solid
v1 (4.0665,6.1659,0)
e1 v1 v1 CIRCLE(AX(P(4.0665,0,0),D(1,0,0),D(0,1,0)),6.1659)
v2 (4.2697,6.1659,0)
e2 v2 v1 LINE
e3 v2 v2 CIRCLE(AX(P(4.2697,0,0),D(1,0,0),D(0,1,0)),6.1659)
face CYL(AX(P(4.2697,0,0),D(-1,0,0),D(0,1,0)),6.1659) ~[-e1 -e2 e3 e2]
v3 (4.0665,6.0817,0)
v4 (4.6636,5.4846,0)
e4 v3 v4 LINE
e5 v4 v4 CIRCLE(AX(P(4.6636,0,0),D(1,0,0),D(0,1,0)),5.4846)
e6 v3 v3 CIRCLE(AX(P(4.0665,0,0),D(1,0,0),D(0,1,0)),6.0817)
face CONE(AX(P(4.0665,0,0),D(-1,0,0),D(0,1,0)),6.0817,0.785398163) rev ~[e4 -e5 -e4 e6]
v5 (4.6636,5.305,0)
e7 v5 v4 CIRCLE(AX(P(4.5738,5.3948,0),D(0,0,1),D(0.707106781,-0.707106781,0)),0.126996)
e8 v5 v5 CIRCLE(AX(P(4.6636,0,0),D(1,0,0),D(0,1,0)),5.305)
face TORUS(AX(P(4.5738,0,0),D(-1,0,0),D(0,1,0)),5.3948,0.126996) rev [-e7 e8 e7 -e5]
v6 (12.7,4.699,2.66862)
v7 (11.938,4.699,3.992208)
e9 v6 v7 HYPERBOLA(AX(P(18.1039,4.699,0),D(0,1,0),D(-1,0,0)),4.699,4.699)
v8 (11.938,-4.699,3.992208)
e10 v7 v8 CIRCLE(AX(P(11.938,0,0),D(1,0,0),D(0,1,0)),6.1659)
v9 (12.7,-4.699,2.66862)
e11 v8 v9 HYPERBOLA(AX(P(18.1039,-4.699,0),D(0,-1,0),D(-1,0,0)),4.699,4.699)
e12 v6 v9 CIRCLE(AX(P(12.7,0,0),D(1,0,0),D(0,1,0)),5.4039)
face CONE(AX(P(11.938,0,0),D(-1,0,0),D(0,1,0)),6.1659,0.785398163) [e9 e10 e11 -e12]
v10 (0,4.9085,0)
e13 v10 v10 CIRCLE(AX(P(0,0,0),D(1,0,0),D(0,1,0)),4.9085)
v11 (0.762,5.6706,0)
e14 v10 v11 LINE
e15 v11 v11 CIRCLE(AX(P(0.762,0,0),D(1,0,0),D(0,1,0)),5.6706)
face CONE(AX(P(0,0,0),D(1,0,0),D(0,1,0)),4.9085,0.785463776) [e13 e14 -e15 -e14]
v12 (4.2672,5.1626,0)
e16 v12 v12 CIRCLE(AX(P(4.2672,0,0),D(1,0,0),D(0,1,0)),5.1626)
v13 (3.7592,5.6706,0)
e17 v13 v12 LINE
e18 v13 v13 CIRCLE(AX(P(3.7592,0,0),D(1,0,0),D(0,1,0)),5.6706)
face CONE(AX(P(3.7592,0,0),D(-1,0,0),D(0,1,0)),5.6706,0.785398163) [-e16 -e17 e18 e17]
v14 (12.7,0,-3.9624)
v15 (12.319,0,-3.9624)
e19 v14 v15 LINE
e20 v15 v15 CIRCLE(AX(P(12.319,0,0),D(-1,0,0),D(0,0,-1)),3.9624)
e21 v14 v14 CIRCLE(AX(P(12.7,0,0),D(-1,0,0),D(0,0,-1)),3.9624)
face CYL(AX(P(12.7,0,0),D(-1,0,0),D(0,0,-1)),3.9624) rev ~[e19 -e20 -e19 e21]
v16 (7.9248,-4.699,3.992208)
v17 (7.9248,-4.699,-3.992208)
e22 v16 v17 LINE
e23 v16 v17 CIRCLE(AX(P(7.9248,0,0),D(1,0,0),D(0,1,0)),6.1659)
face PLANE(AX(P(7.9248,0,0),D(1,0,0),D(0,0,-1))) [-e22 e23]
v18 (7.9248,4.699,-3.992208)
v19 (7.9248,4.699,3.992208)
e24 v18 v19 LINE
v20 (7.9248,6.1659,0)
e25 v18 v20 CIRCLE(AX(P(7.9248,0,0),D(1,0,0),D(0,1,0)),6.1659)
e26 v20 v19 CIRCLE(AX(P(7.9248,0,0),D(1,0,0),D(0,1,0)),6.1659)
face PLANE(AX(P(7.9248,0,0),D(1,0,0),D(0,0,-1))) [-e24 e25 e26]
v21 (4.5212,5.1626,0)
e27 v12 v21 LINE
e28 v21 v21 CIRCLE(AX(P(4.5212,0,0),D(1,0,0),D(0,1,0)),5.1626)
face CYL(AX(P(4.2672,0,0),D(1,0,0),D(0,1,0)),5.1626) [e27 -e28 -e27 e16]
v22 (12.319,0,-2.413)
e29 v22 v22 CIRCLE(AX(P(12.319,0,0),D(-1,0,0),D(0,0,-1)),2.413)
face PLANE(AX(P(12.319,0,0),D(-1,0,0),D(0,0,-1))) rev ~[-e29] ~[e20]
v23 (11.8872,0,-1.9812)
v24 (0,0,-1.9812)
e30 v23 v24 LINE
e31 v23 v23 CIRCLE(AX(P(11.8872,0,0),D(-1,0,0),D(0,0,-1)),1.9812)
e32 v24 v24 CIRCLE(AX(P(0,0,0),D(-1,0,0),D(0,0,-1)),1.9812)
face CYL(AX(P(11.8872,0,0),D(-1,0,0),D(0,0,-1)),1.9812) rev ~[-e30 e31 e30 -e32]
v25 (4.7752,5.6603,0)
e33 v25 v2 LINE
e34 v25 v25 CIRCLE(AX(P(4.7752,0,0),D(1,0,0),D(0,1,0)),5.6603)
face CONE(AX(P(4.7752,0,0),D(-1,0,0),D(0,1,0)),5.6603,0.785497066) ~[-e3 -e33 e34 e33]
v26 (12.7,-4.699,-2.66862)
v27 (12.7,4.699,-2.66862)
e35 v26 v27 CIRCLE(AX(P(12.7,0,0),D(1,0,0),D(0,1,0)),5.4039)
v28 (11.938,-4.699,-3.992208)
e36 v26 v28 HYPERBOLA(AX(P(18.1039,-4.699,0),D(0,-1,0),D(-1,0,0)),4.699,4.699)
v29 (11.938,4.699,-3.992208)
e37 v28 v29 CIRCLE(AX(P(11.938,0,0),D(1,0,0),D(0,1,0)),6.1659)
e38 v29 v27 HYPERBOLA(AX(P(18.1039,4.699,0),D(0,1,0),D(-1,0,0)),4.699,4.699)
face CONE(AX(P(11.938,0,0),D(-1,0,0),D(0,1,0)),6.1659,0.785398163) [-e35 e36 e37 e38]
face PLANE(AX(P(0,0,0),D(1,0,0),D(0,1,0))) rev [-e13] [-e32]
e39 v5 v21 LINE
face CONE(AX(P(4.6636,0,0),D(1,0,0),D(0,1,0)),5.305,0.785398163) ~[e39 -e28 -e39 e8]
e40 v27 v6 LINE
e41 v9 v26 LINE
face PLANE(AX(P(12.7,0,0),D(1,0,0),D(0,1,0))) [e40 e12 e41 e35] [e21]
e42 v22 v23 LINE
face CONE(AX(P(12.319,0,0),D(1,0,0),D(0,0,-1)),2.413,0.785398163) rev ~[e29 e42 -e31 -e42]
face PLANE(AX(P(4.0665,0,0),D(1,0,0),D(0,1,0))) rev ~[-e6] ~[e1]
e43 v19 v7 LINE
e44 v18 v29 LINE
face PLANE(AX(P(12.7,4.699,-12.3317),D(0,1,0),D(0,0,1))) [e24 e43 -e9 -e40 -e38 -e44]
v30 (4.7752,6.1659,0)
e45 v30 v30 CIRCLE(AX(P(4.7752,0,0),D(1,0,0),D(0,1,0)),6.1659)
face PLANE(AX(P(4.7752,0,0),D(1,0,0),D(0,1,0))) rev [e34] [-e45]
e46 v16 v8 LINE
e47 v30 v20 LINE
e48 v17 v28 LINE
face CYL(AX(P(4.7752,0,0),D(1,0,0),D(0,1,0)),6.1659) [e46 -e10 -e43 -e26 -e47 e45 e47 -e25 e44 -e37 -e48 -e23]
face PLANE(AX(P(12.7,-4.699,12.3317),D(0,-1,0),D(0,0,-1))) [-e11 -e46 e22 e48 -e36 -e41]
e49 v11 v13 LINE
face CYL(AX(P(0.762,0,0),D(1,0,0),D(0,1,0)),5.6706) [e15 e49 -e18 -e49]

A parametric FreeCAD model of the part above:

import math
import FreeCAD as App
import Part
import Sketcher
Q = App.Units.Quantity

doc = App.newDocument("Part")
body = doc.addObject("PartDesign::Body", "Body")

# Sketch on XY plane
sketch1 = body.newObject("Sketcher::SketchObject", "Sketch")
sketch1.AttachmentSupport = (doc.getObject("XY_Plane"), [""])
sketch1.MapMode = "FlatFace"
sketch1.addGeometry([
    Part.LineSegment(App.Vector(0, 0, 0), App.Vector(12.7, 0, 0)),  # 0
    Part.LineSegment(App.Vector(12.7, 0, 0), App.Vector(12.7, 5.4, 0)),  # 1
    Part.LineSegment(App.Vector(12.7, 5.4, 0), App.Vector(11.9, 6.2, 0)),  # 2
    Part.LineSegment(App.Vector(11.9, 6.2, 0), App.Vector(4.8, 6.2, 0)),  # 3
    Part.LineSegment(App.Vector(4.8, 6.2, 0), App.Vector(4.8, 5.2, 0)),  # 4
    Part.LineSegment(App.Vector(4.8, 5.2, 0), App.Vector(4.3, 5.2, 0)),  # 5
    Part.LineSegment(App.Vector(4.3, 5.2, 0), App.Vector(3.8, 5.7, 0)),  # 6
    Part.LineSegment(App.Vector(3.8, 5.7, 0), App.Vector(0.8, 5.7, 0)),  # 7
    Part.LineSegment(App.Vector(0.8, 5.7, 0), App.Vector(0, 4.9, 0)),  # 8
    Part.LineSegment(App.Vector(0, 4.9, 0), App.Vector(0, 0, 0)),  # 9
], False)
sketch1.addConstraint([
    Sketcher.Constraint("Coincident", 0, 2, 1, 1),
    Sketcher.Constraint("Coincident", 1, 2, 2, 1),
    Sketcher.Constraint("Coincident", 2, 2, 3, 1),
    Sketcher.Constraint("Coincident", 3, 2, 4, 1),
    Sketcher.Constraint("Coincident", 4, 2, 5, 1),
    Sketcher.Constraint("Coincident", 5, 2, 6, 1),
    Sketcher.Constraint("Coincident", 6, 2, 7, 1),
    Sketcher.Constraint("Coincident", 7, 2, 8, 1),
    Sketcher.Constraint("Coincident", 8, 2, 9, 1),
    Sketcher.Constraint("Coincident", 9, 2, 0, 1),
    Sketcher.Constraint("Horizontal", 0),
    Sketcher.Constraint("Vertical", 1),
    Sketcher.Constraint("Horizontal", 3),
    Sketcher.Constraint("Vertical", 4),
    Sketcher.Constraint("Horizontal", 5),
    Sketcher.Constraint("Horizontal", 7),
    Sketcher.Constraint("Vertical", 9),
    Sketcher.Constraint("Coincident", 9, 2, -1, 1),
    Sketcher.Constraint("Parallel", 2, 6),
    Sketcher.Constraint("Perpendicular", 6, 8),
    Sketcher.Constraint("Equal", 2, 8),
    Sketcher.Constraint("DistanceX", 0, 1, 0, 2, Q("0.5 in")),
    Sketcher.Constraint("Angle", 2, Q("135 deg")),
    Sketcher.Constraint("DistanceX", 5, 2, 5, 1, Q("0.02 in")),
    Sketcher.Constraint("DistanceX", 3, 2, 3, 1, Q("0.282 in")),
    Sketcher.Constraint("DistanceX", 7, 2, 7, 1, Q("0.118 in")),
    Sketcher.Constraint("DistanceX", -1, 1, 2, 2, Q("0.47 in")),
    Sketcher.Constraint("DistanceY", 4, 2, 4, 1, Q("0.0395 in")),
    Sketcher.Constraint("DistanceY", 1, 1, 1, 2, Q("5.404 mm")),
])
revolution = body.newObject("PartDesign::Revolution", "Revolution")
revolution.Profile = sketch1
revolution.ReferenceAxis = (sketch1, ["H_Axis"])
revolution.Angle = 360

# Sketch on YZ plane
sketch2 = body.newObject("Sketcher::SketchObject", "Sketch001")
sketch2.AttachmentSupport = (doc.getObject("YZ_Plane"), [""])
sketch2.MapMode = "FlatFace"
sketch2.AttachmentOffset = App.Placement(App.Vector(0, 0, 0.5 * 25.4), App.Rotation())
sketch2.addGeometry(Part.Circle(App.Vector(0, 0, 0), App.Vector(0, 0, 1), 4), False)
sketch2.addConstraint([
    Sketcher.Constraint("Coincident", 0, 3, -1, 1),
    Sketcher.Constraint("Diameter", 0, Q("0.312 in")),
])
doc.recompute()
hole = body.newObject("PartDesign::Hole", "Hole")
hole.Profile = sketch2
hole.ThreadType = "None"
hole.Diameter = Q("0.312 in")
hole.DepthType = "Dimension"
hole.Depth = Q("0.015 in")
hole.DrillPoint = "Flat"

# Sketch on YZ plane
sketch3 = body.newObject("Sketcher::SketchObject", "Sketch002")
sketch3.AttachmentSupport = (doc.getObject("YZ_Plane"), [""])
sketch3.MapMode = "FlatFace"
sketch3.AttachmentOffset = App.Placement(App.Vector(0, 0, 0.485 * 25.4), App.Rotation())
sketch3.addGeometry(Part.Circle(App.Vector(0, 0, 0), App.Vector(0, 0, 1), 2), False)
sketch3.addConstraint([
    Sketcher.Constraint("Coincident", 0, 3, -1, 1),
    Sketcher.Constraint("Diameter", 0, Q("0.156 in")),
])
doc.recompute()
hole2 = body.newObject("PartDesign::Hole", "Hole001")
hole2.Profile = sketch3
hole2.ThreadType = "None"
hole2.Diameter = Q("0.156 in")
hole2.DepthType = "Dimension"
hole2.Depth = Q("0.485 in")
hole2.DrillPoint = "Flat"
hole2.HoleCutType = "Countersink"
hole2.HoleCutDiameter = Q("0.19 in")
hole2.HoleCutCountersinkAngle = 90

# Sketch on YZ plane
sketch4 = body.newObject("Sketcher::SketchObject", "Sketch003")
sketch4.AttachmentSupport = (doc.getObject("YZ_Plane"), [""])
sketch4.MapMode = "FlatFace"
sketch4.AttachmentOffset = App.Placement(App.Vector(0, 0, 0.5 * 25.4), App.Rotation())
sketch4.addGeometry([
    Part.LineSegment(App.Vector(12, 25, 0), App.Vector(-12, 25, 0)),  # 0
    Part.LineSegment(App.Vector(-12, 25, 0), App.Vector(-12, -25, 0)),  # 1
    Part.LineSegment(App.Vector(-12, -25, 0), App.Vector(12, -25, 0)),  # 2
    Part.LineSegment(App.Vector(12, -25, 0), App.Vector(12, 25, 0)),  # 3
    Part.LineSegment(App.Vector(-5, -12, 0), App.Vector(-5, 12, 0)),  # 4
    Part.LineSegment(App.Vector(-5, 12, 0), App.Vector(5, 12, 0)),  # 5
    Part.LineSegment(App.Vector(5, 12, 0), App.Vector(5, -12, 0)),  # 6
    Part.LineSegment(App.Vector(5, -12, 0), App.Vector(-5, -12, 0)),  # 7
], False)
sketch4.addConstraint([
    Sketcher.Constraint("Coincident", 0, 2, 1, 1),
    Sketcher.Constraint("Coincident", 1, 2, 2, 1),
    Sketcher.Constraint("Coincident", 2, 2, 3, 1),
    Sketcher.Constraint("Coincident", 3, 2, 0, 1),
    Sketcher.Constraint("Coincident", 4, 2, 5, 1),
    Sketcher.Constraint("Coincident", 5, 2, 6, 1),
    Sketcher.Constraint("Coincident", 6, 2, 7, 1),
    Sketcher.Constraint("Coincident", 7, 2, 4, 1),
    Sketcher.Constraint("Horizontal", 0),
    Sketcher.Constraint("Vertical", 1),
    Sketcher.Constraint("Horizontal", 2),
    Sketcher.Constraint("Vertical", 3),
    Sketcher.Constraint("Vertical", 4),
    Sketcher.Constraint("Horizontal", 5),
    Sketcher.Constraint("Vertical", 6),
    Sketcher.Constraint("Horizontal", 7),
    Sketcher.Constraint("Symmetric", 0, 2, 2, 2, -1, 1),
    Sketcher.Constraint("Symmetric", 4, 2, 6, 2, -1, 1),
    Sketcher.Constraint("Equal", 2, 4),
    Sketcher.Constraint("DistanceX", 5, 1, 5, 2, Q("0.37 in")),
    Sketcher.Constraint("DistanceX", 0, 2, 0, 1, Q("0.971 in")),
    Sketcher.Constraint("DistanceY", 1, 2, 1, 1, Q("1.942 in")),
])
pocket1 = body.newObject("PartDesign::Pocket", "Pocket")
pocket1.Profile = sketch4
pocket1.Length = Q("0.188 in")

# Sketch on XY plane
sketch5 = body.newObject("Sketcher::SketchObject", "Sketch004")
sketch5.AttachmentSupport = (doc.getObject("XY_Plane"), [""])
sketch5.MapMode = "FlatFace"
sketch5.addGeometry([
    Part.LineSegment(App.Vector(4.27, 6.17, 0), App.Vector(4.07, 6.17, 0)),  # 0
    Part.LineSegment(App.Vector(4.07, 6.17, 0), App.Vector(4.07, 6.08, 0)),  # 1
    Part.LineSegment(App.Vector(4.07, 6.08, 0), App.Vector(4.66, 5.48, 0)),  # 2
    Part.ArcOfCircle(Part.Circle(App.Vector(4.57, 5.39, 0), App.Vector(0, 0, 1), 0.13), math.radians(-45), math.radians(45)),  # 3
    Part.LineSegment(App.Vector(4.66, 5.3, 0), App.Vector(4.52, 5.16, 0)),  # 4
    Part.LineSegment(App.Vector(4.52, 5.16, 0), App.Vector(4.27, 5.16, 0)),  # 5
    Part.LineSegment(App.Vector(4.27, 5.16, 0), App.Vector(4.27, 4.91, 0)),  # 6
    Part.LineSegment(App.Vector(4.27, 4.91, 0), App.Vector(4.78, 4.91, 0)),  # 7
    Part.LineSegment(App.Vector(4.78, 4.91, 0), App.Vector(4.78, 5.66, 0)),  # 8
    Part.LineSegment(App.Vector(4.78, 5.66, 0), App.Vector(4.27, 6.17, 0)),  # 9
], False)
sketch5.addConstraint([
    Sketcher.Constraint("Coincident", 0, 2, 1, 1),
    Sketcher.Constraint("Coincident", 1, 2, 2, 1),
    Sketcher.Constraint("Tangent", 2, 2, 3, 2),
    Sketcher.Constraint("Tangent", 3, 1, 4, 1),
    Sketcher.Constraint("Coincident", 4, 2, 5, 1),
    Sketcher.Constraint("Coincident", 5, 2, 6, 1),
    Sketcher.Constraint("Coincident", 6, 2, 7, 1),
    Sketcher.Constraint("Coincident", 7, 2, 8, 1),
    Sketcher.Constraint("Coincident", 8, 2, 9, 1),
    Sketcher.Constraint("Coincident", 9, 2, 0, 1),
    Sketcher.Constraint("Horizontal", 0),
    Sketcher.Constraint("Vertical", 1),
    Sketcher.Constraint("Horizontal", 5),
    Sketcher.Constraint("Vertical", 6),
    Sketcher.Constraint("Horizontal", 7),
    Sketcher.Constraint("Vertical", 8),
    Sketcher.Constraint("Perpendicular", 2, 4),
    Sketcher.Constraint("Perpendicular", 4, 9),
    Sketcher.Constraint("Vertical", 2, 2, 3, 1),
    Sketcher.Constraint("Equal", 5, 6),
    Sketcher.Constraint("Radius", 3, Q("0.005 in")),
    Sketcher.Constraint("DistanceX", 5, 2, 5, 1, Q("0.01 in")),
    Sketcher.Constraint("DistanceX", 7, 1, 7, 2, Q("0.02 in")),
    Sketcher.Constraint("DistanceX", 0, 2, 0, 1, Q("0.008 in")),
    Sketcher.Constraint("DistanceY", 8, 1, 8, 2, Q("0.0296 in")),
    Sketcher.Constraint("DistanceX", -1, 1, 4, 2, Q("0.178 in")),
    Sketcher.Constraint("DistanceY", 3, 1, 8, 2, Q("0.014 in")),
    Sketcher.Constraint("DistanceY", -1, 1, 3, 3, Q("0.2124 in")),
    Sketcher.Constraint("DistanceX", -1, 1, 0, 2, Q("0.1601 in")),
])
revolution2 = body.newObject("PartDesign::Revolution", "Revolution001")
revolution2.Profile = sketch5
revolution2.ReferenceAxis = (sketch5, ["H_Axis"])
revolution2.Angle = 360

doc.recompute()
